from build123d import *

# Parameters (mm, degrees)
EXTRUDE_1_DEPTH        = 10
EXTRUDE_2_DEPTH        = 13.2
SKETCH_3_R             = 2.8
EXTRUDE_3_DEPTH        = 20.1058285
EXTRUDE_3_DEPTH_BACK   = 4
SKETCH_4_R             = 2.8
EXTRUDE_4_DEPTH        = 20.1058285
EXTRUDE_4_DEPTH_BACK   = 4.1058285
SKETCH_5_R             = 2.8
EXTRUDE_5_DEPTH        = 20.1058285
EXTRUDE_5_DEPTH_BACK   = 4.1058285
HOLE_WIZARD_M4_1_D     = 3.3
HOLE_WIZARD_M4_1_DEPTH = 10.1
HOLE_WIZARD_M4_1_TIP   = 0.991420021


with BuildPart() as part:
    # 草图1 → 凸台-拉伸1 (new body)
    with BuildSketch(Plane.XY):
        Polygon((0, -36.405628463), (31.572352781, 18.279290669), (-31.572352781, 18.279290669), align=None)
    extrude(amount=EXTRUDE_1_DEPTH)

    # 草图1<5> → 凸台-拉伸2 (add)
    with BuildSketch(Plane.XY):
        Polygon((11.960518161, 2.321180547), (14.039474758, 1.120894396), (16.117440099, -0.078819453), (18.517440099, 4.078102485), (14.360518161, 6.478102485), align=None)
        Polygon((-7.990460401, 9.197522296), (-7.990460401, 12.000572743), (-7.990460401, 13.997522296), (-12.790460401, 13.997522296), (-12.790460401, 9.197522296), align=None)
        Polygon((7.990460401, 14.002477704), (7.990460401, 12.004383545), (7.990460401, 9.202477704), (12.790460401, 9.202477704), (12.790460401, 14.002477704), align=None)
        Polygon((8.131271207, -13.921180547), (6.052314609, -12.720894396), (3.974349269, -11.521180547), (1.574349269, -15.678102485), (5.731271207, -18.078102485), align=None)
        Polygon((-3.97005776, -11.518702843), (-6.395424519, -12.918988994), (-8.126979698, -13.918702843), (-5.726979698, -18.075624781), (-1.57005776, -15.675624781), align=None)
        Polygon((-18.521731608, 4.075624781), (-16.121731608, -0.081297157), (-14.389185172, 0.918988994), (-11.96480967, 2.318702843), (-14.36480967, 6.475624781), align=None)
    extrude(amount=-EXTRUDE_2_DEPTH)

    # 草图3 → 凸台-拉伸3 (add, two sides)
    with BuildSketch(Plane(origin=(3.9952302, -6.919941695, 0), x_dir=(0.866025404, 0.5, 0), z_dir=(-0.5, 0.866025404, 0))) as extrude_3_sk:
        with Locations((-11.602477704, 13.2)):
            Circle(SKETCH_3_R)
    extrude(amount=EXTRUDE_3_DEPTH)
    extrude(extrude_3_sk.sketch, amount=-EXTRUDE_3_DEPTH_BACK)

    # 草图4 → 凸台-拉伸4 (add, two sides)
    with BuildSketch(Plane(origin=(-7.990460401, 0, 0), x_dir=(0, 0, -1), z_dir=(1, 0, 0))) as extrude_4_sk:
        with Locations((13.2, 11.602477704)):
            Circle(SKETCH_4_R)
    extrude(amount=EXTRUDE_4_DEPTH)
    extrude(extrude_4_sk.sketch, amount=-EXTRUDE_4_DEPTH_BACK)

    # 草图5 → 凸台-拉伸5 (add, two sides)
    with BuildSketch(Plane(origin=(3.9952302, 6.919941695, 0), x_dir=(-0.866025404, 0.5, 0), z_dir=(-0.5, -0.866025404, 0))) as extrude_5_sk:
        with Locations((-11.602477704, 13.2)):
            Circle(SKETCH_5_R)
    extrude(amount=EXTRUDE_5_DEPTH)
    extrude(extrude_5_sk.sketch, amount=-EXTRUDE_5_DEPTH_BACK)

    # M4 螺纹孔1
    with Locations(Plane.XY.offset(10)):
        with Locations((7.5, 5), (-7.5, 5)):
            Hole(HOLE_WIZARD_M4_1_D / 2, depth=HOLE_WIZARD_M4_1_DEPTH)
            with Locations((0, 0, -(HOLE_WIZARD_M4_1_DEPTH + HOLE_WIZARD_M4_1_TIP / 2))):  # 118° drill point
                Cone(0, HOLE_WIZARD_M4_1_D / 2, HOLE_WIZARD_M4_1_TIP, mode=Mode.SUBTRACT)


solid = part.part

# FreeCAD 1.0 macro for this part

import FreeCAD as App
import Part
import Sketcher
from FreeCAD import Vector
Q = App.Units.Quantity

doc = App.newDocument("Part")
body = doc.addObject("PartDesign::Body", "Body")

# Sketch on XY plane
sketch1 = doc.addObject("Sketcher::SketchObject", "Sketch")
body.addObject(sketch1)
sketch1.AttachmentSupport = (doc.XY_Plane, [""])
sketch1.MapMode = "FlatFace"
sketch1.addGeometry([
    Part.LineSegment(Vector(0, -36, 0), Vector(32, 18, 0)),
    Part.LineSegment(Vector(32, 18, 0), Vector(-32, 18, 0)),
    Part.LineSegment(Vector(-32, 18, 0), Vector(0, -36, 0)),
], False)
sketch1.addConstraint([
    Sketcher.Constraint("Coincident", 0, 2, 1, 1),
    Sketcher.Constraint("Coincident", 1, 2, 2, 1),
    Sketcher.Constraint("Coincident", 2, 2, 0, 1),
    Sketcher.Constraint("Horizontal", 1),
    Sketcher.Constraint("PointOnObject", 2, 2, -2),
    Sketcher.Constraint("Equal", 0, 2),
    Sketcher.Constraint("Angle", 0, Q("60 deg")),
    Sketcher.Constraint("DistanceX", 1, 2, 1, 1, 63.144706),
    Sketcher.Constraint("DistanceY", -1, 1, 0, 2, 18.279291),
])
pad1 = doc.addObject("PartDesign::Pad", "Pad")
body.addObject(pad1)
pad1.Profile = sketch1
pad1.Length = 10

# Sketch on XY plane
sketch2 = doc.addObject("Sketcher::SketchObject", "Sketch001")
body.addObject(sketch2)
sketch2.AttachmentSupport = (doc.XY_Plane, [""])
sketch2.MapMode = "FlatFace"
sketch2.addGeometry([
    Part.LineSegment(Vector(12, 2.3, 0), Vector(14, 1.1, 0)),  # 0
    Part.LineSegment(Vector(14, 1.1, 0), Vector(16.1, -0.1, 0)),  # 1
    Part.LineSegment(Vector(16.1, -0.1, 0), Vector(18.5, 4.1, 0)),  # 2
    Part.LineSegment(Vector(18.5, 4.1, 0), Vector(14.4, 6.5, 0)),  # 3
    Part.LineSegment(Vector(14.4, 6.5, 0), Vector(12, 2.3, 0)),  # 4
    Part.LineSegment(Vector(-8, 9.2, 0), Vector(-8, 14, 0)),  # 5
    Part.LineSegment(Vector(-8, 14, 0), Vector(-12.8, 14, 0)),  # 6
    Part.LineSegment(Vector(-12.8, 14, 0), Vector(-12.8, 9.2, 0)),  # 7
    Part.LineSegment(Vector(-12.8, 9.2, 0), Vector(-8, 9.2, 0)),  # 8
    Part.LineSegment(Vector(8, 14, 0), Vector(8, 9.2, 0)),  # 9
    Part.LineSegment(Vector(8, 9.2, 0), Vector(12.8, 9.2, 0)),  # 10
    Part.LineSegment(Vector(12.8, 9.2, 0), Vector(12.8, 14, 0)),  # 11
    Part.LineSegment(Vector(12.8, 14, 0), Vector(8, 14, 0)),  # 12
    Part.LineSegment(Vector(8.1, -13.9, 0), Vector(6.1, -12.7, 0)),  # 13
    Part.LineSegment(Vector(6.1, -12.7, 0), Vector(4, -11.5, 0)),  # 14
    Part.LineSegment(Vector(4, -11.5, 0), Vector(1.6, -15.7, 0)),  # 15
    Part.LineSegment(Vector(1.6, -15.7, 0), Vector(5.7, -18.1, 0)),  # 16
    Part.LineSegment(Vector(5.7, -18.1, 0), Vector(8.1, -13.9, 0)),  # 17
    Part.LineSegment(Vector(-4, -11.5, 0), Vector(-6.4, -12.9, 0)),  # 18
    Part.LineSegment(Vector(-6.4, -12.9, 0), Vector(-8.1, -13.9, 0)),  # 19
    Part.LineSegment(Vector(-8.1, -13.9, 0), Vector(-5.7, -18.1, 0)),  # 20
    Part.LineSegment(Vector(-5.7, -18.1, 0), Vector(-1.6, -15.7, 0)),  # 21
    Part.LineSegment(Vector(-1.6, -15.7, 0), Vector(-4, -11.5, 0)),  # 22
    Part.LineSegment(Vector(-18.5, 4.1, 0), Vector(-16.1, -0.1, 0)),  # 23
    Part.LineSegment(Vector(-16.1, -0.1, 0), Vector(-14.4, 0.9, 0)),  # 24
    Part.LineSegment(Vector(-14.4, 0.9, 0), Vector(-12, 2.3, 0)),  # 25
    Part.LineSegment(Vector(-12, 2.3, 0), Vector(-14.4, 6.5, 0)),  # 26
    Part.LineSegment(Vector(-14.4, 6.5, 0), Vector(-18.5, 4.1, 0)),  # 27
], False)
sketch2.addConstraint([
    Sketcher.Constraint("Coincident", 0, 2, 1, 1),
    Sketcher.Constraint("Coincident", 1, 2, 2, 1),
    Sketcher.Constraint("Coincident", 2, 2, 3, 1),
    Sketcher.Constraint("Coincident", 3, 2, 4, 1),
    Sketcher.Constraint("Coincident", 4, 2, 0, 1),
    Sketcher.Constraint("Coincident", 5, 2, 6, 1),
    Sketcher.Constraint("Coincident", 6, 2, 7, 1),
    Sketcher.Constraint("Coincident", 7, 2, 8, 1),
    Sketcher.Constraint("Coincident", 8, 2, 5, 1),
    Sketcher.Constraint("Coincident", 9, 2, 10, 1),
    Sketcher.Constraint("Coincident", 10, 2, 11, 1),
    Sketcher.Constraint("Coincident", 11, 2, 12, 1),
    Sketcher.Constraint("Coincident", 12, 2, 9, 1),
    Sketcher.Constraint("Coincident", 13, 2, 14, 1),
    Sketcher.Constraint("Coincident", 14, 2, 15, 1),
    Sketcher.Constraint("Coincident", 15, 2, 16, 1),
    Sketcher.Constraint("Coincident", 16, 2, 17, 1),
    Sketcher.Constraint("Coincident", 17, 2, 13, 1),
    Sketcher.Constraint("Coincident", 18, 2, 19, 1),
    Sketcher.Constraint("Coincident", 19, 2, 20, 1),
    Sketcher.Constraint("Coincident", 20, 2, 21, 1),
    Sketcher.Constraint("Coincident", 21, 2, 22, 1),
    Sketcher.Constraint("Coincident", 22, 2, 18, 1),
    Sketcher.Constraint("Coincident", 23, 2, 24, 1),
    Sketcher.Constraint("Coincident", 24, 2, 25, 1),
    Sketcher.Constraint("Coincident", 25, 2, 26, 1),
    Sketcher.Constraint("Coincident", 26, 2, 27, 1),
    Sketcher.Constraint("Coincident", 27, 2, 23, 1),
    Sketcher.Constraint("Vertical", 5),
    Sketcher.Constraint("Horizontal", 6),
    Sketcher.Constraint("Vertical", 7),
    Sketcher.Constraint("Horizontal", 8),
    Sketcher.Constraint("Vertical", 9),
    Sketcher.Constraint("Horizontal", 10),
    Sketcher.Constraint("Vertical", 11),
    Sketcher.Constraint("Horizontal", 12),
    Sketcher.Constraint("Parallel", 0, 1),
    Sketcher.Constraint("Perpendicular", 1, 2),
    Sketcher.Constraint("Perpendicular", 2, 3),
    Sketcher.Constraint("Perpendicular", 3, 4),
    Sketcher.Constraint("Perpendicular", 4, 13),
    Sketcher.Constraint("Parallel", 13, 14),
    Sketcher.Constraint("Perpendicular", 14, 15),
    Sketcher.Constraint("Perpendicular", 15, 16),
    Sketcher.Constraint("Perpendicular", 16, 17),
    Sketcher.Constraint("Parallel", 18, 19),
    Sketcher.Constraint("Perpendicular", 19, 20),
    Sketcher.Constraint("Perpendicular", 20, 21),
    Sketcher.Constraint("Perpendicular", 21, 22),
    Sketcher.Constraint("Parallel", 22, 23),
    Sketcher.Constraint("Perpendicular", 23, 24),
    Sketcher.Constraint("Parallel", 24, 25),
    Sketcher.Constraint("Perpendicular", 25, 26),
    Sketcher.Constraint("Perpendicular", 26, 27),
    Sketcher.Constraint("Equal", 8, 10),
    Sketcher.Constraint("Equal", 12, 5),
    Sketcher.Constraint("Equal", 7, 9),
    Sketcher.Constraint("Equal", 2, 3),
    Sketcher.Constraint("Equal", 0, 13),
    Sketcher.Constraint("Equal", 1, 14),
    Sketcher.Constraint("Equal", 4, 15),
    Sketcher.Constraint("Equal", 17, 20),
    Sketcher.Constraint("Equal", 20, 21),
    Sketcher.Constraint("Equal", 22, 23),
    Sketcher.Constraint("Equal", 26, 27),
    Sketcher.Constraint("Angle", 0, Q("-30 deg")),
    Sketcher.Constraint("Angle", 18, Q("-150 deg")),
    Sketcher.Constraint("DistanceX", 6, 2, 6, 1, 4.8),
    Sketcher.Constraint("Distance", 2, 4.8),
    Sketcher.Constraint("DistanceX", 5, 2, 1, 2, 24.1079),
    Sketcher.Constraint("DistanceY", 15, 2, 19, 2, 1.7594),
    Sketcher.Constraint("DistanceX", -1, 1, 1, 2, 16.11744),
    Sketcher.Constraint("DistanceY", 1, 2, -1, 1, 0.078819),
    Sketcher.Constraint("DistanceX", -1, 1, 9, 2, 7.99046),
    Sketcher.Constraint("DistanceX", -1, 1, 14, 2, 3.974349),
    Sketcher.Constraint("DistanceY", 14, 2, -1, 1, 11.521181),
    Sketcher.Constraint("DistanceY", 18, 2, -1, 1, 12.918989),
    Sketcher.Constraint("DistanceX", 19, 2, -1, 1, 8.12698),
    Sketcher.Constraint("DistanceX", 23, 2, -1, 1, 16.121732),
    Sketcher.Constraint("DistanceY", -1, 1, 24, 2, 0.918989),
    Sketcher.Constraint("DistanceY", 0, 2, 2, 2, 2.957208),
    Sketcher.Constraint("DistanceY", 4, 2, 5, 2, 11.676342),
    Sketcher.Constraint("DistanceY", 23, 2, 7, 2, 9.278819),
    Sketcher.Constraint("DistanceY", -1, 1, 9, 2, 9.202478),
])
pad2 = doc.addObject("PartDesign::Pad", "Pad001")
body.addObject(pad2)
pad2.Profile = sketch2
pad2.Length = 13.2
pad2.Reversed = True

# Sketch on an angled plane
sketch3 = doc.addObject("Sketcher::SketchObject", "Sketch002")
body.addObject(sketch3)
sketch3.Placement = App.Placement(Vector(3.99523, -6.919942, 0), App.Rotation(Vector(0.866025404, 0.5, 0), Vector(0, 0, -1), Vector(-0.5, 0.866025404, 0), "ZXY"))
sketch3.addGeometry(Part.Circle(Vector(-11.6, 13.2, 0), Vector(0, 0, 1), 2.8), False)
sketch3.addConstraint([
    Sketcher.Constraint("Diameter", 0, 5.6),
    Sketcher.Constraint("DistanceY", -1, 1, 0, 3, 13.2),
    Sketcher.Constraint("DistanceX", 0, 3, -1, 1, 11.602478),
])
pad3 = doc.addObject("PartDesign::Pad", "Pad002")
body.addObject(pad3)
pad3.Profile = sketch3
pad3.Type = "TwoLengths"
pad3.Length = 20.105829
pad3.Length2 = 4

# Sketch on YZ plane
sketch4 = doc.addObject("Sketcher::SketchObject", "Sketch003")
body.addObject(sketch4)
sketch4.AttachmentSupport = (doc.YZ_Plane, [""])
sketch4.MapMode = "FlatFace"
sketch4.AttachmentOffset = App.Placement(Vector(0, 0, -7.99046), App.Rotation())
sketch4.addGeometry(Part.Circle(Vector(11.6, -13.2, 0), Vector(0, 0, 1), 2.8), False)
sketch4.addConstraint([
    Sketcher.Constraint("Diameter", 0, 5.6),
    Sketcher.Constraint("DistanceY", 0, 3, -1, 1, 13.2),
    Sketcher.Constraint("DistanceX", -1, 1, 0, 3, 11.602478),
])
pad4 = doc.addObject("PartDesign::Pad", "Pad003")
body.addObject(pad4)
pad4.Profile = sketch4
pad4.Type = "TwoLengths"
pad4.Length = 20.105829
pad4.Length2 = 4.105829

# Sketch on an angled plane
sketch5 = doc.addObject("Sketcher::SketchObject", "Sketch004")
body.addObject(sketch5)
sketch5.Placement = App.Placement(Vector(3.99523, 6.919942, 0), App.Rotation(Vector(-0.866025404, 0.5, 0), Vector(0, 0, -1), Vector(-0.5, -0.866025404, 0), "ZXY"))
sketch5.addGeometry(Part.Circle(Vector(-11.6, 13.2, 0), Vector(0, 0, 1), 2.8), False)
sketch5.addConstraint([
    Sketcher.Constraint("Diameter", 0, 5.6),
    Sketcher.Constraint("DistanceY", -1, 1, 0, 3, 13.2),
    Sketcher.Constraint("DistanceX", 0, 3, -1, 1, 11.602478),
])
pad5 = doc.addObject("PartDesign::Pad", "Pad004")
body.addObject(pad5)
pad5.Profile = sketch5
pad5.Type = "TwoLengths"
pad5.Length = 20.105829
pad5.Length2 = 4.105829

# Sketch on XY plane
sketch6 = doc.addObject("Sketcher::SketchObject", "Sketch005")
body.addObject(sketch6)
sketch6.AttachmentSupport = (doc.XY_Plane, [""])
sketch6.MapMode = "FlatFace"
sketch6.AttachmentOffset = App.Placement(Vector(0, 0, 10), App.Rotation())
sketch6.addGeometry([
    Part.Circle(Vector(7.5, 5, 0), Vector(0, 0, 1), 1.6),
    Part.Circle(Vector(-7.5, 5, 0), Vector(0, 0, 1), 1.6),
], False)
sketch6.addConstraint([
    Sketcher.Constraint("Equal", 0, 1),
    Sketcher.Constraint("Symmetric", 0, 3, 1, 3, -2),
    Sketcher.Constraint("Diameter", 0, 3.3),
    Sketcher.Constraint("DistanceY", -1, 1, 0, 3, 5.0),
    Sketcher.Constraint("DistanceX", 1, 3, 0, 3, 15.0),
])
doc.recompute()
hole = doc.addObject("PartDesign::Hole", "Hole")
body.addObject(hole)
hole.Profile = sketch6
hole.ThreadType = "None"
hole.Diameter = 3.3
hole.DepthType = "Dimension"
hole.Depth = 10.1
hole.DrillPoint = "Angled"
hole.DrillPointAngle = 118

doc.recompute()
